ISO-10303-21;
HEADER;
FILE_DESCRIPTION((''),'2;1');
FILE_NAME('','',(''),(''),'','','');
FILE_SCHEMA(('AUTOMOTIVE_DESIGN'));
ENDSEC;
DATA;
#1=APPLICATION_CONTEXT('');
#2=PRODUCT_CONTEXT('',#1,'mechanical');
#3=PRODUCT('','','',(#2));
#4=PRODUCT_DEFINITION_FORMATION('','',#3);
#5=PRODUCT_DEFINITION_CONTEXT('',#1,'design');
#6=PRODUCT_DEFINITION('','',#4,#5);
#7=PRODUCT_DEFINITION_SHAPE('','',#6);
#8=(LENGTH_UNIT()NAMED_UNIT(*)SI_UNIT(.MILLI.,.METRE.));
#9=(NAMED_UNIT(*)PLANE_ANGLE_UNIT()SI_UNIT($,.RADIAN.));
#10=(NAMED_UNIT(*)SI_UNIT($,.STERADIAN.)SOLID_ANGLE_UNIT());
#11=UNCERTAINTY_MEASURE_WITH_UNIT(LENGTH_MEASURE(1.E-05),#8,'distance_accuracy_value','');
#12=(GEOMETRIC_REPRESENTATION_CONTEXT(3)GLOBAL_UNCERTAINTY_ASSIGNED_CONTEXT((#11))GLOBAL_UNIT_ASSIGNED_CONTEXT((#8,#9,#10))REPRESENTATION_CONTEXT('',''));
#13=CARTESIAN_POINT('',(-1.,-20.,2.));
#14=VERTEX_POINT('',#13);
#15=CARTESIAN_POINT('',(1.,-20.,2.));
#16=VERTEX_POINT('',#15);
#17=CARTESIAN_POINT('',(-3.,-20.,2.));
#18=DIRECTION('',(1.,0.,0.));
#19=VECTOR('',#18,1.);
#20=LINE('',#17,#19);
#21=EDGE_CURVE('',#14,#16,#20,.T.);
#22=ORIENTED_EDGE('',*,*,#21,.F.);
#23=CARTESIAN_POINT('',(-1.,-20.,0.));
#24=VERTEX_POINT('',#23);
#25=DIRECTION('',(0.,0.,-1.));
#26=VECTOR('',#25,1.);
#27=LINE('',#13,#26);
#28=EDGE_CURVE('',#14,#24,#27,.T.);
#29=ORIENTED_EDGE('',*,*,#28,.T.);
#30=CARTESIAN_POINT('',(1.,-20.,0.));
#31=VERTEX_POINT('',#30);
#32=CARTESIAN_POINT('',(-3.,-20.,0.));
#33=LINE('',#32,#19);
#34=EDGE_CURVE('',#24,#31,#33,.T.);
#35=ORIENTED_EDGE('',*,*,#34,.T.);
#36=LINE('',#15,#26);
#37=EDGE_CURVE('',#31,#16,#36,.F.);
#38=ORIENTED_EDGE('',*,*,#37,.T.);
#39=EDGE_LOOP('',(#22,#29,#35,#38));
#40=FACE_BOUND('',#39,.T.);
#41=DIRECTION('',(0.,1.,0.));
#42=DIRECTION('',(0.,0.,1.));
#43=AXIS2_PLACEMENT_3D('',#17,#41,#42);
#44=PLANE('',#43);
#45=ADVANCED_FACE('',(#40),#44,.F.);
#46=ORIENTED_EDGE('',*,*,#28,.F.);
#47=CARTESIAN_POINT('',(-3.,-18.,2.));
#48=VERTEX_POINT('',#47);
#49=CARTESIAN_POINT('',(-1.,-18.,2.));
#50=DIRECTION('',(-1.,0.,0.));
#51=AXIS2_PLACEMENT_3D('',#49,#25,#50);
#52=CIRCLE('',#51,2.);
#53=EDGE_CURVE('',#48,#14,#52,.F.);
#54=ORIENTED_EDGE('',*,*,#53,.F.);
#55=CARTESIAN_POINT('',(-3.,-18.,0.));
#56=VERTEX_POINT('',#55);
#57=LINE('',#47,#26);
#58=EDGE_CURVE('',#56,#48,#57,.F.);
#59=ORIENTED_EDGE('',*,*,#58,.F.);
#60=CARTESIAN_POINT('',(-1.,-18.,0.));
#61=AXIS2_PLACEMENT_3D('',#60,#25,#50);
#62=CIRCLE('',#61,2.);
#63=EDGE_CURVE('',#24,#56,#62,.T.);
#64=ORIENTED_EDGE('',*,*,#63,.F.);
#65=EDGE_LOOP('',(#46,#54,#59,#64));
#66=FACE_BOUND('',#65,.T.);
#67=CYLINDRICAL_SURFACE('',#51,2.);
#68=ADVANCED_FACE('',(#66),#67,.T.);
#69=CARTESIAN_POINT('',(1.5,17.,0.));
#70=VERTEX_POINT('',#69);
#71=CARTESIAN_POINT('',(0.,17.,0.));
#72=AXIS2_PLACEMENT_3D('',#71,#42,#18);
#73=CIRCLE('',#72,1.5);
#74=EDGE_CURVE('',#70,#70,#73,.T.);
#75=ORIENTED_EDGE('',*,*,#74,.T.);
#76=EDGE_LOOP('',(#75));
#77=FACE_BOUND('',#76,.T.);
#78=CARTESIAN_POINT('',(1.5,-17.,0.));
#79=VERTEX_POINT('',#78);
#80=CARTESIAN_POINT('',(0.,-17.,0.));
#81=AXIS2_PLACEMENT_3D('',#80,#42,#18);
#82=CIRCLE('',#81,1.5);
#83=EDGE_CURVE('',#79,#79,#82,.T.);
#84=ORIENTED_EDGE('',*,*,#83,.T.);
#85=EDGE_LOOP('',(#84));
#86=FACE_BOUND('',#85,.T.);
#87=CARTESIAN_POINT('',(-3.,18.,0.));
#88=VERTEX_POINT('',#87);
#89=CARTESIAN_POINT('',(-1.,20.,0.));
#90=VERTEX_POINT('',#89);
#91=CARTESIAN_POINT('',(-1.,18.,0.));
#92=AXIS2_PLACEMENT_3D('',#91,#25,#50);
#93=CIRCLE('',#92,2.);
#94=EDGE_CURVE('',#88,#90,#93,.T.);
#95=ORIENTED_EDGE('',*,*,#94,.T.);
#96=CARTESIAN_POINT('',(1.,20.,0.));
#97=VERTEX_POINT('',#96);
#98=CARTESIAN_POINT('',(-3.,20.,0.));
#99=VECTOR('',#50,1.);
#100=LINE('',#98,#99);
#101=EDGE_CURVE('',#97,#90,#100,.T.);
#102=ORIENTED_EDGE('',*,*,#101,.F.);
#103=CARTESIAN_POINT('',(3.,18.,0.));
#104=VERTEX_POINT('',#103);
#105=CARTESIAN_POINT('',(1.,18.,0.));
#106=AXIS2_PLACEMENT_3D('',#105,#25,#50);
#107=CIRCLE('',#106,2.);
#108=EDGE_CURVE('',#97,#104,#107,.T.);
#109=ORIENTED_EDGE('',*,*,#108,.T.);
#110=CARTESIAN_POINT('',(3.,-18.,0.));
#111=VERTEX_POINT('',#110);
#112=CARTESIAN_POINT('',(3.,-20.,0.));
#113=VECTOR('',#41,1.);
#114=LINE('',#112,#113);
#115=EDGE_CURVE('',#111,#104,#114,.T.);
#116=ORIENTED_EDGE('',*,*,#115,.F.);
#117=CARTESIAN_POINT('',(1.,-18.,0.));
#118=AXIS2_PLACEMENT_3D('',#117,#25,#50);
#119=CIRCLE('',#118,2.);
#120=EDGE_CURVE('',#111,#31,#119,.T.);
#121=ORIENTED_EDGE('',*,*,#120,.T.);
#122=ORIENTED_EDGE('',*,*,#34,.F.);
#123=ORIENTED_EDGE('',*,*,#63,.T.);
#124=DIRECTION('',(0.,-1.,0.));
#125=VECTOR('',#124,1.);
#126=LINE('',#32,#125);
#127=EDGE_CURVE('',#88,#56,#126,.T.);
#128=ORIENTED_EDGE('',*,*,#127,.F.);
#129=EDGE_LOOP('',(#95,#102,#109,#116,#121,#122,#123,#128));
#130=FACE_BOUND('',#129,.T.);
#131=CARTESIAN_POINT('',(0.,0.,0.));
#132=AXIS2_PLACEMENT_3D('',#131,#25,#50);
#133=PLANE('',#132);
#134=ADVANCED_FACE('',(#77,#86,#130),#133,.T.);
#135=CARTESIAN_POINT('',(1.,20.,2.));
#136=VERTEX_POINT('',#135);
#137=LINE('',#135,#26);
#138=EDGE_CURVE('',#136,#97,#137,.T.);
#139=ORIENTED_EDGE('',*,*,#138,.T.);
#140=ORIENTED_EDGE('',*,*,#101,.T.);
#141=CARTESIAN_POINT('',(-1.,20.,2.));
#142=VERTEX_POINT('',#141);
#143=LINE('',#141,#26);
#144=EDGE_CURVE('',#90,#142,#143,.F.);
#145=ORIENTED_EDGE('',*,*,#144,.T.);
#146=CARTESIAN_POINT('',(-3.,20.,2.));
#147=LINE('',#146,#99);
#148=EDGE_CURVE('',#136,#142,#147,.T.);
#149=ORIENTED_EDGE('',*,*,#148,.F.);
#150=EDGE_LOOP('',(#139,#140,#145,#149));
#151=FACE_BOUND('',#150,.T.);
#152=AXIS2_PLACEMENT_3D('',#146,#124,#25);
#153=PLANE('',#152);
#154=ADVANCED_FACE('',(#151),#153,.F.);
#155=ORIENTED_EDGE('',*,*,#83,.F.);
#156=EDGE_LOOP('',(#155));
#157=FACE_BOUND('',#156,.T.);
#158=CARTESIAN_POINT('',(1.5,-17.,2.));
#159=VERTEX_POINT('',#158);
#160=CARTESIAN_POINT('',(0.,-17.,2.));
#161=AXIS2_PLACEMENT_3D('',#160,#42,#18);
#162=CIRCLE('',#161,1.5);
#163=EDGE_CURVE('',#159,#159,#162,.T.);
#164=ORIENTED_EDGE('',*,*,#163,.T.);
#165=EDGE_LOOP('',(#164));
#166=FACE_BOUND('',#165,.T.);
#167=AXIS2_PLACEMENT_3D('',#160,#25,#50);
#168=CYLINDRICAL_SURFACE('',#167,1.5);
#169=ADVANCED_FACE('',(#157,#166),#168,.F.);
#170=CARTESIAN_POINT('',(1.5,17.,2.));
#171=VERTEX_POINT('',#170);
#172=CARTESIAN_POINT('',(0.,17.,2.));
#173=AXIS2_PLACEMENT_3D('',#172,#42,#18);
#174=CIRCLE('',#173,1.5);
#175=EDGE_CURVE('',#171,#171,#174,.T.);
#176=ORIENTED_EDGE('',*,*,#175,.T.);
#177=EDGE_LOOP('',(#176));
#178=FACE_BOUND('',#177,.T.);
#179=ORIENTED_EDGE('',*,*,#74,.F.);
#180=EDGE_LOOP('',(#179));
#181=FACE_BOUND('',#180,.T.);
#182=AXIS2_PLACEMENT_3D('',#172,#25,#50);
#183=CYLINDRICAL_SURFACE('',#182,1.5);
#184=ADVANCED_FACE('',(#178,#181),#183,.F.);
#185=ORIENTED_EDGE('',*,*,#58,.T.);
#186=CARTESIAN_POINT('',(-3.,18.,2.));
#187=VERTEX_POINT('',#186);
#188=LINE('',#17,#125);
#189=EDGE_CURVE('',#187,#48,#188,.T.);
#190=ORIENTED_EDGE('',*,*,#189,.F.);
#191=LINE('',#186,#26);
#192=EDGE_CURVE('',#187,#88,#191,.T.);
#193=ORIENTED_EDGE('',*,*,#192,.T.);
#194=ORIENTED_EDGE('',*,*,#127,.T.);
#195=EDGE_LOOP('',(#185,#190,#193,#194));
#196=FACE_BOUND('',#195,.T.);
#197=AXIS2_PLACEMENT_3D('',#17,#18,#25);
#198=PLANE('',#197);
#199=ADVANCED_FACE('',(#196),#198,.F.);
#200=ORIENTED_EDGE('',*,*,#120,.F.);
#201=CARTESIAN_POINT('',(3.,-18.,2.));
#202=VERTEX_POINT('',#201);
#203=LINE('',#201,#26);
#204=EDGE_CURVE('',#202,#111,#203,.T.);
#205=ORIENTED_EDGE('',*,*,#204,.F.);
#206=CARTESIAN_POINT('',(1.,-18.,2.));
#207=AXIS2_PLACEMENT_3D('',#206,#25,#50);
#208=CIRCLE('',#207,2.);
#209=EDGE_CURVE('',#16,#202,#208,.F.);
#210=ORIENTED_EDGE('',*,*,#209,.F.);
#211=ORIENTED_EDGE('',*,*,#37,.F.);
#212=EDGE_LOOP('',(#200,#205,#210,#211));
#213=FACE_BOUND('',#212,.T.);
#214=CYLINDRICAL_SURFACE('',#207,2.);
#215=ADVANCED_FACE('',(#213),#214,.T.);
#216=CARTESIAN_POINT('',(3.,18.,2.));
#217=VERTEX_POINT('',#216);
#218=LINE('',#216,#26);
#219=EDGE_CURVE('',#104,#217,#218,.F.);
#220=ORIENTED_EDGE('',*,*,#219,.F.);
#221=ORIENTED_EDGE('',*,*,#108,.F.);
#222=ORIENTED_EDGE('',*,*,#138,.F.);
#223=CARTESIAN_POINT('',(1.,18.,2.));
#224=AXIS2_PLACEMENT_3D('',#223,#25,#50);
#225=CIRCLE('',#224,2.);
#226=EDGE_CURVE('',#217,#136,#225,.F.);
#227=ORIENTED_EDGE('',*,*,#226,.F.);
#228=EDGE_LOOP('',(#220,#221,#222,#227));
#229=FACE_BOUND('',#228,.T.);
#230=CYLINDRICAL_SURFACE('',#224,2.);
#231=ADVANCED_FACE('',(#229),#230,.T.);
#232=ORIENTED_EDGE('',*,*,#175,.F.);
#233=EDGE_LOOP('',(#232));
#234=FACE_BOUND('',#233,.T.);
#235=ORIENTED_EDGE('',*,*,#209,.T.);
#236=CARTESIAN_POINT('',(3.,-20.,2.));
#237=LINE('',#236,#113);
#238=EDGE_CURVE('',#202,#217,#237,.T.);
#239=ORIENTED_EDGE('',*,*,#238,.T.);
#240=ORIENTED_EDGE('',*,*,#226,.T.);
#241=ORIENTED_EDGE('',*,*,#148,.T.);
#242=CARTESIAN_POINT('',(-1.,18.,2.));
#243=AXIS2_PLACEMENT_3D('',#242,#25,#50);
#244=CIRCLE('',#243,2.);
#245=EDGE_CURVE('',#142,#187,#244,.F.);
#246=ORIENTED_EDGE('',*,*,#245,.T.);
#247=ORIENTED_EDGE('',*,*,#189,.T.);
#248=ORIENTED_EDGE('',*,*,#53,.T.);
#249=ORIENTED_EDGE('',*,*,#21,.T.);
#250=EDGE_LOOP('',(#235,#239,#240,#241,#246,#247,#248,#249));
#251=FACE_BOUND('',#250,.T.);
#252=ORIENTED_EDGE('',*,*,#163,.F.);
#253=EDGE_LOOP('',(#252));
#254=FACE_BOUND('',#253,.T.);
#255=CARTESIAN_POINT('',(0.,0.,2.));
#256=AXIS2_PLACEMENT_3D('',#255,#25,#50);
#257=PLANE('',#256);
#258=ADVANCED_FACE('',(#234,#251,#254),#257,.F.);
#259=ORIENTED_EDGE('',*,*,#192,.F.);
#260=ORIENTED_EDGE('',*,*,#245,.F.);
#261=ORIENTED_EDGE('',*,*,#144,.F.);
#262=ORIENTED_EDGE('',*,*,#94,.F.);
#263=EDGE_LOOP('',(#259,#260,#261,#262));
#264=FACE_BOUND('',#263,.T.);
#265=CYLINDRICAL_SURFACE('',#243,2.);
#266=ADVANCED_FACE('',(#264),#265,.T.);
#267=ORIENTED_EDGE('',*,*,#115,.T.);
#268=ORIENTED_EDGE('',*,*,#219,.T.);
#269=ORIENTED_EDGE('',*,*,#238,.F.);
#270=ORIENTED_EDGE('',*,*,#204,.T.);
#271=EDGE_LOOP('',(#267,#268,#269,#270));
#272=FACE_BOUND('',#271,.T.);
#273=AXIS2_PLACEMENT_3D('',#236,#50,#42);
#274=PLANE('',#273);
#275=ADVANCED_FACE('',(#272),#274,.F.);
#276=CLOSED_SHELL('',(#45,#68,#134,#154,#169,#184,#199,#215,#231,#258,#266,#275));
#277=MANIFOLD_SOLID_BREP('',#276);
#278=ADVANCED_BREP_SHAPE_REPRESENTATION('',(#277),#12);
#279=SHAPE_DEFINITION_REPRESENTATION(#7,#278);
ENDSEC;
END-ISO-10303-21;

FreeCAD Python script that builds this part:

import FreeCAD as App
import Part
import Sketcher
from FreeCAD import Vector


def edges_at(feature, points):
    """Names of the edges that pass closest to the given points."""
    edges = feature.Shape.Edges
    near = lambda p: min(range(len(edges)), key=lambda i: edges[i].distToShape(Part.Vertex(*p))[0])
    return sorted({f"Edge{near(p) + 1}" for p in points})


def add_polygon(sketch, points):
    """Adds a closed chain of lines whose ends are joined by coincident constraints."""
    first, n = sketch.GeometryCount, len(points)
    for a, b in zip(points, points[1:] + points[:1]):
        sketch.addGeometry(Part.LineSegment(App.Vector(*a, 0), App.Vector(*b, 0)), False)
    for i in range(n):
        sketch.addConstraint(Sketcher.Constraint("Coincident", first + i, 2, first + (i + 1) % n, 1))

doc = App.newDocument("Part")
body = doc.addObject("PartDesign::Body", "Body")

# Sketch on XY plane
sketch1 = doc.addObject("Sketcher::SketchObject", "Sketch")
body.addObject(sketch1)
sketch1.AttachmentSupport = (doc.XY_Plane, [""])
sketch1.MapMode = "FlatFace"
add_polygon(sketch1, [(-3, 20), (-3, -20), (3, -20), (3, 20)])  # lines 0-3
sketch1.addGeometry(Part.Circle(Vector(0, -17, 0), Vector(0, 0, 1), 1.5), False)  # 4
sketch1.addGeometry(Part.Circle(Vector(0, 17, 0), Vector(0, 0, 1), 1.5), False)  # 5
sketch1.addConstraint([
    Sketcher.Constraint("Vertical", 0),
    Sketcher.Constraint("Horizontal", 1),
    Sketcher.Constraint("Vertical", 2),
    Sketcher.Constraint("Horizontal", 3),
    Sketcher.Constraint("Equal", 4, 5),
    Sketcher.Constraint("Symmetric", 4, 3, 5, 3, -1, 1),
    Sketcher.Constraint("Symmetric", 0, 2, 2, 2, -1, 1),
    Sketcher.Constraint("PointOnObject", 4, 3, -2),
    Sketcher.Constraint("Diameter", 4, 3.0),
    Sketcher.Constraint("DistanceX", 1, 1, 1, 2, 6.0),
    Sketcher.Constraint("DistanceY", 0, 2, 0, 1, 40.0),
    Sketcher.Constraint("DistanceY", 4, 3, -1, 1, 17.0),
])
pad1 = doc.addObject("PartDesign::Pad", "Pad")
body.addObject(pad1)
pad1.Profile = sketch1
pad1.Length = 2
doc.recompute()

fillet = doc.addObject("PartDesign::Fillet", "Fillet")
body.addObject(fillet)
fillet.Base = (pad1, edges_at(pad1, [
    (3, -20, 1),
    (-3, -20, 1),
    (-3, 20, 1),
    (3, 20, 1),
]))
fillet.Radius = 2

doc.recompute()
